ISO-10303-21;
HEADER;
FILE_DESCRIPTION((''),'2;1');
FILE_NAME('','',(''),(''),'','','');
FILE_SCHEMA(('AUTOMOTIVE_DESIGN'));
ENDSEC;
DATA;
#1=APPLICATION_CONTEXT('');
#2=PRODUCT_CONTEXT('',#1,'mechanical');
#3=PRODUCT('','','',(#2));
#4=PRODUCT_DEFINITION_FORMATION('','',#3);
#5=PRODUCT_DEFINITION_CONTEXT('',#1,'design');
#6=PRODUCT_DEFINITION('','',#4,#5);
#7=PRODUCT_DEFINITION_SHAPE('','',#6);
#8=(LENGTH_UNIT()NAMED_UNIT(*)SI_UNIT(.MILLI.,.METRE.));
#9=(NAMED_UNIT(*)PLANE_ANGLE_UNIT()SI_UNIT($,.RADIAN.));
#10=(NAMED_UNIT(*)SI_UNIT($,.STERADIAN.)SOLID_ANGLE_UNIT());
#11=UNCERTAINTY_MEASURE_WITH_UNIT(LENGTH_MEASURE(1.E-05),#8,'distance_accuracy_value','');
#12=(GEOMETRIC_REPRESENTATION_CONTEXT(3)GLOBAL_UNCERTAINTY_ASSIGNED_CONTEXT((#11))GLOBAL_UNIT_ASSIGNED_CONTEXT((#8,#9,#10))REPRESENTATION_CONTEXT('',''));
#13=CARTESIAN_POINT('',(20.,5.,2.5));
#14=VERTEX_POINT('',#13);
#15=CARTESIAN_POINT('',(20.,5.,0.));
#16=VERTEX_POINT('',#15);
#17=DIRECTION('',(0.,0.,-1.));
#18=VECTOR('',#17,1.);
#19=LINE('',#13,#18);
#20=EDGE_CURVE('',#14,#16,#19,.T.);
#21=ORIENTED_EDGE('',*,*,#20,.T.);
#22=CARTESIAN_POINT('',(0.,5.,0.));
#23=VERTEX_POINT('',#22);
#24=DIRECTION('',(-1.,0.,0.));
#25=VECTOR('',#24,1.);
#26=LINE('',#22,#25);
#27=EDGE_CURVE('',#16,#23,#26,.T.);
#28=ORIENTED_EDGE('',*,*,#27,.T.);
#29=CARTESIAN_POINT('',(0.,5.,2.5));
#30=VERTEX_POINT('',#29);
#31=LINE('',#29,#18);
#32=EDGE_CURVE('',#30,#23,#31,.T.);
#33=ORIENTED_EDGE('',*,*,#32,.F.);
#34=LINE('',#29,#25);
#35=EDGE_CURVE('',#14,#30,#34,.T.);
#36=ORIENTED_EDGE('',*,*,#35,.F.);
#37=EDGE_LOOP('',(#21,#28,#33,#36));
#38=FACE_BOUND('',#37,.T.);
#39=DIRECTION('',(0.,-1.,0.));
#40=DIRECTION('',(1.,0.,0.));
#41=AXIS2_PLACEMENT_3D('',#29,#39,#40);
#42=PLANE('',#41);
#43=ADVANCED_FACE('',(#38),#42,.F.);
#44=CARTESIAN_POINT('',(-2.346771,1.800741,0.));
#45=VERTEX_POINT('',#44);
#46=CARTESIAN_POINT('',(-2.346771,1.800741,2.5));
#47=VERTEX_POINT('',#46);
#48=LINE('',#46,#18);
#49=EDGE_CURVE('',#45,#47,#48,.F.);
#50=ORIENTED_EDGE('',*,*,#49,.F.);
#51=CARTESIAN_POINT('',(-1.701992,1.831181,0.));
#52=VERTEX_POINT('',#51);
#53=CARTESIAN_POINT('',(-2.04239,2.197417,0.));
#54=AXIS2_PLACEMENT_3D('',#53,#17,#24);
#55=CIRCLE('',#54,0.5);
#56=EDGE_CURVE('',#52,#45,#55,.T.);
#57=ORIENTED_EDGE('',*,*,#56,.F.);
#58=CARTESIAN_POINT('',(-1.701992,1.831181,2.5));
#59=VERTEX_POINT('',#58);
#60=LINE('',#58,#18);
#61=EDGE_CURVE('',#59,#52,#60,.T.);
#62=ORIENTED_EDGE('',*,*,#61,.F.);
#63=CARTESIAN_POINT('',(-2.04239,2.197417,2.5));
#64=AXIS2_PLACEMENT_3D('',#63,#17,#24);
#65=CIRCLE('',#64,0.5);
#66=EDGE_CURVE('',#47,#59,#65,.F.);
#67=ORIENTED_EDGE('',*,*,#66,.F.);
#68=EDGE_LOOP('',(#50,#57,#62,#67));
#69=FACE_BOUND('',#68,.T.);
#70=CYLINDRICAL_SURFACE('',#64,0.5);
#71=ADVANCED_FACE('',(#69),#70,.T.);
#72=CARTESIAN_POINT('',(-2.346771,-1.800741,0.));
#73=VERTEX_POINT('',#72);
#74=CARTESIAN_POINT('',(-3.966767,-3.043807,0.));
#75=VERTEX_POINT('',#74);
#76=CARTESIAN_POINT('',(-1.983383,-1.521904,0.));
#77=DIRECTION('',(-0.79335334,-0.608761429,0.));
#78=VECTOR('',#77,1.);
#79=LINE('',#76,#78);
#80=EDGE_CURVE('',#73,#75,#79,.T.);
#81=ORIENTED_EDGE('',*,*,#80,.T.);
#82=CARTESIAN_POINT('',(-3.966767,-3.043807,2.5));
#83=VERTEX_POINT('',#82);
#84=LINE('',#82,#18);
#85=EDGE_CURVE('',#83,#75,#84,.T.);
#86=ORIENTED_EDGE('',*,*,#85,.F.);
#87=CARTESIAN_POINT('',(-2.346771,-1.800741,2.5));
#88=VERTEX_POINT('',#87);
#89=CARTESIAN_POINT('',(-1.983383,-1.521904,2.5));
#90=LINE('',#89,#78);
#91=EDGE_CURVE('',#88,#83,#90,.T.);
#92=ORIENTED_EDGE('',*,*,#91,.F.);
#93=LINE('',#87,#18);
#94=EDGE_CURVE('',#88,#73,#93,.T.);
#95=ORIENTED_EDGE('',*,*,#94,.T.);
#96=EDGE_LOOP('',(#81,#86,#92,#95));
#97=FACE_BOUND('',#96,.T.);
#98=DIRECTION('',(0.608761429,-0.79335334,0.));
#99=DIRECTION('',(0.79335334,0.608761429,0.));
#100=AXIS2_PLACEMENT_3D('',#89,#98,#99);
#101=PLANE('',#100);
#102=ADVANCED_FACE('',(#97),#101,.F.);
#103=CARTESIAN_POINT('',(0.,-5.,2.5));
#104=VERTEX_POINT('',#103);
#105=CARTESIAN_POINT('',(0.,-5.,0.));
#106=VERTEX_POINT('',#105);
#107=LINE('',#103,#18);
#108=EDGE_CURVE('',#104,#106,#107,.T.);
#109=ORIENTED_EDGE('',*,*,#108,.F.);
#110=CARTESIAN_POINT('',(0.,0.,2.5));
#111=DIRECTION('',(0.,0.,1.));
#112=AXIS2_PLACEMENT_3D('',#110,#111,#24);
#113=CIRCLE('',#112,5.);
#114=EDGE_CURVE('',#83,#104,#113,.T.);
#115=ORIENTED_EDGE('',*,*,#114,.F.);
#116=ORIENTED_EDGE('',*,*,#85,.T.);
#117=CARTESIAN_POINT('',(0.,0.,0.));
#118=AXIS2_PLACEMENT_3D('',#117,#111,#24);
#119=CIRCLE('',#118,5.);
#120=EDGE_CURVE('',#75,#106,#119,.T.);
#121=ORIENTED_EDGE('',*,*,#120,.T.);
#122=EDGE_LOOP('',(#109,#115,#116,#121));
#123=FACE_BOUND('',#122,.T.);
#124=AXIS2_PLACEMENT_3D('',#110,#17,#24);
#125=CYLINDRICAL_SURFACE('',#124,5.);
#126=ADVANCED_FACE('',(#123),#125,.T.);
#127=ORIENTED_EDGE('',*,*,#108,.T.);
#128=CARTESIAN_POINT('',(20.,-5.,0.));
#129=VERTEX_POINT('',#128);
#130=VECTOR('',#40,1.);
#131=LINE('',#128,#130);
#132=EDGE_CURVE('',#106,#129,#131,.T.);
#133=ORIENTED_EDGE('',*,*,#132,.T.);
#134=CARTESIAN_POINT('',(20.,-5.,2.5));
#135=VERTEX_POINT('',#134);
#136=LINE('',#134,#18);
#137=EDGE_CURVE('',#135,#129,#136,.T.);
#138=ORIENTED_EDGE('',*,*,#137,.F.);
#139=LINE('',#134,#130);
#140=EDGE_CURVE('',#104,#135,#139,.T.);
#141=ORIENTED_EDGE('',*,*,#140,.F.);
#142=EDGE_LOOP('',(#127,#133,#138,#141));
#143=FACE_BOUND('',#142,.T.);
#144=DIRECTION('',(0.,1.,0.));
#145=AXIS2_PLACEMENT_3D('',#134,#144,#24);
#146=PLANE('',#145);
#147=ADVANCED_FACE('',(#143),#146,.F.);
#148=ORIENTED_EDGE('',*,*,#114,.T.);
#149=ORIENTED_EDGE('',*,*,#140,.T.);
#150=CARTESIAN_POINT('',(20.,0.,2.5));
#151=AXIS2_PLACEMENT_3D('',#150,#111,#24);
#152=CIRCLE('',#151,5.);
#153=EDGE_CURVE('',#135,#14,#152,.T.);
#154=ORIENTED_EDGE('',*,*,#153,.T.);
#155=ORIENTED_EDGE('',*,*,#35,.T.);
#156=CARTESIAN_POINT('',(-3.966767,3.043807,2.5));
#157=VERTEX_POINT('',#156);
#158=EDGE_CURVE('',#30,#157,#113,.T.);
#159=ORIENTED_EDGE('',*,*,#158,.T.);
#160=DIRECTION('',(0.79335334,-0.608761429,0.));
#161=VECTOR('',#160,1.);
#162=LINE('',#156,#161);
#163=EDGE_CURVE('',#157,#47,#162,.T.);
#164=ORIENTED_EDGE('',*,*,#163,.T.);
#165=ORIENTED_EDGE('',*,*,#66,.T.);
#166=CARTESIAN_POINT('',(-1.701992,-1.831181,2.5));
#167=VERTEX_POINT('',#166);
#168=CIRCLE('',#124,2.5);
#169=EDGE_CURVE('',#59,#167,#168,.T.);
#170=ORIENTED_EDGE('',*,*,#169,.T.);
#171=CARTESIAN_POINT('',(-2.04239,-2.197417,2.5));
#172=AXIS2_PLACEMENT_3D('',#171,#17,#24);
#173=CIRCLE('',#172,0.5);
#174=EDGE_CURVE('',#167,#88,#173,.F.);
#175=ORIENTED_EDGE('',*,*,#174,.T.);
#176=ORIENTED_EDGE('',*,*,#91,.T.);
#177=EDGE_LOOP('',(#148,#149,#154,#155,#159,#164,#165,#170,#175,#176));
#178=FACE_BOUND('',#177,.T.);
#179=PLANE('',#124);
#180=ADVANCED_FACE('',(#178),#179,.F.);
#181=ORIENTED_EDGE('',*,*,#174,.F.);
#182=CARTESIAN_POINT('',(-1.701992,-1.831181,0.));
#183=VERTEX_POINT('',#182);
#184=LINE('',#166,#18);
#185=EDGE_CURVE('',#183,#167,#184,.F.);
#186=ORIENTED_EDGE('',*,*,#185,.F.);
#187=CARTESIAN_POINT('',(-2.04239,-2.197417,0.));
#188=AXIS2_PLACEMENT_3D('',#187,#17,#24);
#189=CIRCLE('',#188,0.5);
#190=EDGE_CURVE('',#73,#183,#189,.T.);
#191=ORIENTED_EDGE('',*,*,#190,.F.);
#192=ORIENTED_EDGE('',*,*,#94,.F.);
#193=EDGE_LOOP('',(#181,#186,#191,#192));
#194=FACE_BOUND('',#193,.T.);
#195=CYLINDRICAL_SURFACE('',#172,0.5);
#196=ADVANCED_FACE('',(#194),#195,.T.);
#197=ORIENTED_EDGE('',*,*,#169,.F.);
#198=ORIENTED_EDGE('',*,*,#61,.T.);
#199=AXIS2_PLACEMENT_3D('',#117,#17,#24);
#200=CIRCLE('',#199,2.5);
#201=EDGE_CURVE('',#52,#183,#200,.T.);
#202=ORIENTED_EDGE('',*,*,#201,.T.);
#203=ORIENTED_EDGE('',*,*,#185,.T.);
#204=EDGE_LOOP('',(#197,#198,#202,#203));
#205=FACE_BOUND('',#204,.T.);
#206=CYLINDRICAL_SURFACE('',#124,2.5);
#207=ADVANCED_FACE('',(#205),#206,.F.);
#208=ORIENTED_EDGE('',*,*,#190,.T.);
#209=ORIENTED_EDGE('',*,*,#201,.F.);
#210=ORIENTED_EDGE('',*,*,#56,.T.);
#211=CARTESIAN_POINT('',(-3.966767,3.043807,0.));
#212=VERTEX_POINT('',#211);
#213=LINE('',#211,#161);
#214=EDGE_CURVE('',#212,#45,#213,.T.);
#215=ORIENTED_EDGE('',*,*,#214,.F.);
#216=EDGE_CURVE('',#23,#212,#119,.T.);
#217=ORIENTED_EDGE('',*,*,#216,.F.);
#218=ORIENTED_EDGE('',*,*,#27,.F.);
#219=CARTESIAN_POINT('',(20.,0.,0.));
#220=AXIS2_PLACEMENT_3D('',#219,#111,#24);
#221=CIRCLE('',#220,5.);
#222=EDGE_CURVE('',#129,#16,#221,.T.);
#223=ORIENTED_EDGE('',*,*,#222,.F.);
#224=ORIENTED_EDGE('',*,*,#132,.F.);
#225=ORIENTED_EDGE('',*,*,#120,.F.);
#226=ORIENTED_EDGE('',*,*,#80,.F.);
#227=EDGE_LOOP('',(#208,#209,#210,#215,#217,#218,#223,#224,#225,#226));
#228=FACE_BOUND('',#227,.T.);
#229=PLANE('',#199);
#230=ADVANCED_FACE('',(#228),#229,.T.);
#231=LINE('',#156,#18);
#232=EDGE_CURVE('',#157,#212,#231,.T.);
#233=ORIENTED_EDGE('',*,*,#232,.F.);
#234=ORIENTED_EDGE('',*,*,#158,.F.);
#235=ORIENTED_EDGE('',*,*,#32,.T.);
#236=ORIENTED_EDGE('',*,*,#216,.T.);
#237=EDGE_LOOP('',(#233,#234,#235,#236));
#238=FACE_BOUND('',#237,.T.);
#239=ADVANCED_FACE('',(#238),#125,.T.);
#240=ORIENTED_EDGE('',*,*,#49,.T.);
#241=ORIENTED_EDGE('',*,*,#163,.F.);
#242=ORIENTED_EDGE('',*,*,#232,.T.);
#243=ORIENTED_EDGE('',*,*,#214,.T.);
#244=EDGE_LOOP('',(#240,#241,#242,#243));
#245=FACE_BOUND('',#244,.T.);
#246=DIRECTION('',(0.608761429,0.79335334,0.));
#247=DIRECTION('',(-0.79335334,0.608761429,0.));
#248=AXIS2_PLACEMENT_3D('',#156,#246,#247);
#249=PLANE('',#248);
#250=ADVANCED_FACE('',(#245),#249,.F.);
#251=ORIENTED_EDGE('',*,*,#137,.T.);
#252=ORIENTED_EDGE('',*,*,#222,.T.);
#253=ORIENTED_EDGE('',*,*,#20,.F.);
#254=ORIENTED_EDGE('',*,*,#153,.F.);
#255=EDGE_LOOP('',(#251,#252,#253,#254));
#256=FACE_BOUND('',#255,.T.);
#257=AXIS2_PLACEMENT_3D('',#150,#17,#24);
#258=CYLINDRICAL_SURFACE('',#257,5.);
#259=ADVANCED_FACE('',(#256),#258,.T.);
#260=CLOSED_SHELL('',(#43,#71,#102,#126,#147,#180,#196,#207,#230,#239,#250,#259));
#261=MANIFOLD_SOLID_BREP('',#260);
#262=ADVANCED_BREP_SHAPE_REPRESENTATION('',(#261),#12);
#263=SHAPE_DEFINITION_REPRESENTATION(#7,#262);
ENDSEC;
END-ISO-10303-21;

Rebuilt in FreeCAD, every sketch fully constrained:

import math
import FreeCAD as App
import Part
import Sketcher
from FreeCAD import Vector
Q = App.Units.Quantity


def edges_at(feature, points):
    """Names of the edges that pass closest to the given points."""
    edges = feature.Shape.Edges
    near = lambda p: min(range(len(edges)), key=lambda i: edges[i].distToShape(Part.Vertex(*p))[0])
    return sorted({f"Edge{near(p) + 1}" for p in points})

doc = App.newDocument("Part")
body = doc.addObject("PartDesign::Body", "Body")

# Sketch on XY plane
sketch1 = body.newObject("Sketcher::SketchObject", "Sketch")
sketch1.AttachmentSupport = (doc.getObject("XY_Plane"), [""])
sketch1.MapMode = "FlatFace"
sketch1.addGeometry([
    Part.LineSegment(Vector(-3.966767, 3.043807, 0), Vector(-1.983383, 1.521904, 0)),  # 0
    Part.ArcOfCircle(Part.Circle(Vector(0, 0, 0), Vector(0, 0, 1), 2.5), math.radians(-142.5), math.radians(142.5)),  # 1
    Part.LineSegment(Vector(-1.983383, -1.521904, 0), Vector(-3.966767, -3.043807, 0)),  # 2
    Part.ArcOfCircle(Part.Circle(Vector(0, 0, 0), Vector(0, 0, 1), 5), math.radians(-142.5), math.radians(-90)),  # 3
    Part.LineSegment(Vector(0, -5, 0), Vector(20, -5, 0)),  # 4
    Part.ArcOfCircle(Part.Circle(Vector(20, 0, 0), Vector(0, 0, 1), 5), math.radians(-90), math.radians(90)),  # 5
    Part.LineSegment(Vector(20, 5, 0), Vector(0, 5, 0)),  # 6
    Part.ArcOfCircle(Part.Circle(Vector(0, 0, 0), Vector(0, 0, 1), 5), math.radians(90), math.radians(142.5)),  # 7
], False)
sketch1.addConstraint([
    Sketcher.Constraint("Coincident", 0, 2, 1, 2),
    Sketcher.Constraint("Coincident", 1, 1, 2, 1),
    Sketcher.Constraint("Coincident", 2, 2, 3, 1),
    Sketcher.Constraint("Tangent", 3, 2, 4, 1),
    Sketcher.Constraint("Tangent", 4, 2, 5, 1),
    Sketcher.Constraint("Tangent", 5, 2, 6, 1),
    Sketcher.Constraint("Tangent", 6, 2, 7, 1),
    Sketcher.Constraint("Coincident", 7, 2, 0, 1),
    Sketcher.Constraint("Horizontal", 4),
    Sketcher.Constraint("Horizontal", 6),
    Sketcher.Constraint("Coincident", 1, 3, -1, 1),
    Sketcher.Constraint("Coincident", 3, 3, -1, 1),
    Sketcher.Constraint("Coincident", 7, 3, -1, 1),
    Sketcher.Constraint("Equal", 3, 5),
    Sketcher.Constraint("Vertical", 0, 2, 1, 1),
    Sketcher.Constraint("Vertical", 2, 2, 7, 2),
    Sketcher.Constraint("Radius", 3, Q("5 mm")),
    Sketcher.Constraint("Radius", 1, Q("2.5 mm")),
    Sketcher.Constraint("DistanceX", 4, 1, 4, 2, Q("20 mm")),
    Sketcher.Constraint("Angle", 0, Q("-37.5 deg")),
    Sketcher.Constraint("DistanceY", 2, 2, 0, 2, Q("4.565711 mm")),
])
pad1 = body.newObject("PartDesign::Pad", "Pad")
pad1.Profile = sketch1
pad1.Length = 2.5
doc.recompute()

fillet = body.newObject("PartDesign::Fillet", "Fillet")
fillet.Base = (pad1, edges_at(pad1, [(-1.983, -1.522, 1.25), (-1.983, 1.522, 1.25)]))
fillet.Radius = 0.5

doc.recompute()
